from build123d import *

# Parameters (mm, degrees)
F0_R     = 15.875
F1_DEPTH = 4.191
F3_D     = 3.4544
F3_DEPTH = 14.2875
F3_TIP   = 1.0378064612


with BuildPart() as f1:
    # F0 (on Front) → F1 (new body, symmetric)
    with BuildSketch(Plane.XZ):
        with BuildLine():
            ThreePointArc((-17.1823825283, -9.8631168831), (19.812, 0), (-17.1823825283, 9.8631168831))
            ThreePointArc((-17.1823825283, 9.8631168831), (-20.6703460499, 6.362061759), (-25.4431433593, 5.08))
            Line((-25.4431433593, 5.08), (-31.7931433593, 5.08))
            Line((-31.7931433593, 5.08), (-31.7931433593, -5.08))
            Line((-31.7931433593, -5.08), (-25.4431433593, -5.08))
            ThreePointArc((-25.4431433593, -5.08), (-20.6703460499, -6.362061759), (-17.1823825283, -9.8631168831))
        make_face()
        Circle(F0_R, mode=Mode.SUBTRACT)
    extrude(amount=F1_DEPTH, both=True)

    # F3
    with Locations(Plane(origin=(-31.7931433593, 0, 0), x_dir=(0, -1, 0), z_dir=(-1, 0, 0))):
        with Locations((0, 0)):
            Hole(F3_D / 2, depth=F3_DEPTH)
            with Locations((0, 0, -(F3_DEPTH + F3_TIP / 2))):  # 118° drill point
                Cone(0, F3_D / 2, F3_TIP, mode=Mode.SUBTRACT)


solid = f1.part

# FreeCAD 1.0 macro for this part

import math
import FreeCAD as App
import Part
import Sketcher

V = App.Vector
Q = App.Units.Quantity

doc = App.newDocument("Part")
body = doc.addObject("PartDesign::Body", "Body")

sketch1 = body.newObject("Sketcher::SketchObject", "Sketch")
sketch1.AttachmentSupport = (doc.getObject("XZ_Plane"), [""])
sketch1.MapMode = "FlatFace"
sketch1.addGeometry([
    Part.ArcOfCircle(Part.Circle(V(0, 0, 0), V(0, 0, 1), 20), math.radians(-150), math.radians(150)),
    Part.ArcOfCircle(Part.Circle(V(-25, 15, 0), V(0, 0, 1), 10), math.radians(-90), math.radians(-30)),
    Part.LineSegment(V(-25, 5, 0), V(-32, 5, 0)),
    Part.LineSegment(V(-32, 5, 0), V(-32, -5, 0)),
    Part.LineSegment(V(-32, -5, 0), V(-25, -5, 0)),
    Part.ArcOfCircle(Part.Circle(V(-25, -15, 0), V(0, 0, 1), 10), math.radians(30), math.radians(90)),
    Part.Circle(V(0, 0, 0), V(0, 0, 1), 16),
], False)
sketch1.addConstraint([
    Sketcher.Constraint("Tangent", 0, 2, 1, 2),
    Sketcher.Constraint("Tangent", 1, 1, 2, 1),
    Sketcher.Constraint("Coincident", 2, 2, 3, 1),
    Sketcher.Constraint("Coincident", 3, 2, 4, 1),
    Sketcher.Constraint("Tangent", 4, 2, 5, 2),
    Sketcher.Constraint("Tangent", 5, 1, 0, 1),
    Sketcher.Constraint("Horizontal", 2),
    Sketcher.Constraint("Vertical", 3),
    Sketcher.Constraint("Horizontal", 4),
    Sketcher.Constraint("Coincident", 0, 3, -1, 1),
    Sketcher.Constraint("Coincident", 6, 3, -1, 1),
    Sketcher.Constraint("Equal", 1, 5),
    Sketcher.Constraint("Vertical", 1, 3, 5, 3),
    Sketcher.Constraint("Diameter", 6, Q("1.25 in")),
    Sketcher.Constraint("Radius", 0, Q("0.78 in")),
    Sketcher.Constraint("DistanceY", 3, 2, 3, 1, Q("0.4 in")),
    Sketcher.Constraint("Radius", 1, Q("0.375 in")),
    Sketcher.Constraint("DistanceX", 2, 2, 2, 1, Q("0.25 in")),
])
pad1 = body.newObject("PartDesign::Pad", "Pad")
pad1.Profile = sketch1
pad1.Length = Q("0.33 in")
pad1.Midplane = True

sketch2 = body.newObject("Sketcher::SketchObject", "Sketch001")
sketch2.AttachmentSupport = (doc.getObject("YZ_Plane"), [""])
sketch2.MapMode = "FlatFace"
sketch2.AttachmentOffset = App.Placement(V(0, 0, -31.793143), App.Rotation())
sketch2.addGeometry(Part.Circle(V(0, 0, 0), V(0, 0, 1), 1.7), False)
sketch2.addConstraint([
    Sketcher.Constraint("Coincident", 0, 3, -1, 1),
    Sketcher.Constraint("Diameter", 0, Q("0.136 in")),
])
doc.recompute()
hole = body.newObject("PartDesign::Hole", "Hole")
hole.Profile = sketch2
hole.ThreadType = "None"
hole.Diameter = Q("0.136 in")
hole.DepthType = "Dimension"
hole.Depth = Q("0.5625 in")
hole.DrillPoint = "Angled"
hole.DrillPointAngle = 118
hole.Reversed = True

doc.recompute()
